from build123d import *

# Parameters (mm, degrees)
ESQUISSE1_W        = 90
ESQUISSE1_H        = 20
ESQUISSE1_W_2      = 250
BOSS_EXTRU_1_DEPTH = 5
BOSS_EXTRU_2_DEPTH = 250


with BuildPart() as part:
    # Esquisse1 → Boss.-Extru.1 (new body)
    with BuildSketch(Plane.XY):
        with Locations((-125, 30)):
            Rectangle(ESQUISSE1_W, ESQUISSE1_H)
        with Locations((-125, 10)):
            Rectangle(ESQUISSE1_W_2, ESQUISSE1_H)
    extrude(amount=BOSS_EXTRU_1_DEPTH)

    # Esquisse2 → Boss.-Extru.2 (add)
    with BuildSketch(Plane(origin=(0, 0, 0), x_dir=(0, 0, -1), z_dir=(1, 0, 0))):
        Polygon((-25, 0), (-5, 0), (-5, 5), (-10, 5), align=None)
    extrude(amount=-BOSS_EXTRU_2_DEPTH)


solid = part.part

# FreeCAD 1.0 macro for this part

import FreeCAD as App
import Part
import Sketcher
from FreeCAD import Vector


def add_polygon(sketch, points):
    """Adds a closed chain of lines whose ends are joined by coincident constraints."""
    first, n = sketch.GeometryCount, len(points)
    for a, b in zip(points, points[1:] + points[:1]):
        sketch.addGeometry(Part.LineSegment(App.Vector(*a, 0), App.Vector(*b, 0)), False)
    for i in range(n):
        sketch.addConstraint(Sketcher.Constraint("Coincident", first + i, 2, first + (i + 1) % n, 1))

doc = App.newDocument("Part")
body = doc.addObject("PartDesign::Body", "Body")

# Sketch on XY plane
sketch1 = body.newObject("Sketcher::SketchObject", "Sketch")
sketch1.AttachmentSupport = (doc.getObject("XY_Plane"), [""])
sketch1.MapMode = "FlatFace"
add_polygon(sketch1, [(-170, 40), (-170, 20), (-250, 20), (-250, 0), (0, 0), (0, 20), (-80, 20), (-80, 40)])  # lines 0-7
sketch1.addConstraint([
    Sketcher.Constraint("Vertical", 0),
    Sketcher.Constraint("Horizontal", 1),
    Sketcher.Constraint("Vertical", 2),
    Sketcher.Constraint("Horizontal", 3),
    Sketcher.Constraint("Vertical", 4),
    Sketcher.Constraint("Horizontal", 5),
    Sketcher.Constraint("Vertical", 6),
    Sketcher.Constraint("Horizontal", 7),
    Sketcher.Constraint("Coincident", 3, 2, -1, 1),
    Sketcher.Constraint("Horizontal", 1, 2, 4, 2),
    Sketcher.Constraint("Equal", 1, 5),
    Sketcher.Constraint("Equal", 0, 2),
    Sketcher.Constraint("DistanceX", 1, 2, 1, 1, 80.0),
    Sketcher.Constraint("DistanceX", 3, 1, 3, 2, 250.0),
    Sketcher.Constraint("DistanceY", 0, 2, 0, 1, 20.0),
])
pad1 = body.newObject("PartDesign::Pad", "Pad")
pad1.Profile = sketch1
pad1.Length = 5

# Sketch on YZ plane
sketch2 = body.newObject("Sketcher::SketchObject", "Sketch001")
sketch2.AttachmentSupport = (doc.getObject("YZ_Plane"), [""])
sketch2.MapMode = "FlatFace"
add_polygon(sketch2, [(0, 25), (0, 5), (5, 5), (5, 10)])  # lines 0-3
sketch2.addConstraint([
    Sketcher.Constraint("Vertical", 0),
    Sketcher.Constraint("Horizontal", 1),
    Sketcher.Constraint("Vertical", 2),
    Sketcher.Constraint("PointOnObject", 0, 2, -2),
    Sketcher.Constraint("Equal", 1, 2),
    Sketcher.Constraint("DistanceX", 1, 1, 1, 2, 5.0),
    Sketcher.Constraint("DistanceY", 0, 2, 0, 1, 20.0),
    Sketcher.Constraint("DistanceY", -1, 1, 0, 2, 5.0),
])
pad2 = body.newObject("PartDesign::Pad", "Pad001")
pad2.Profile = sketch2
pad2.Length = 250
pad2.Reversed = True

doc.recompute()
